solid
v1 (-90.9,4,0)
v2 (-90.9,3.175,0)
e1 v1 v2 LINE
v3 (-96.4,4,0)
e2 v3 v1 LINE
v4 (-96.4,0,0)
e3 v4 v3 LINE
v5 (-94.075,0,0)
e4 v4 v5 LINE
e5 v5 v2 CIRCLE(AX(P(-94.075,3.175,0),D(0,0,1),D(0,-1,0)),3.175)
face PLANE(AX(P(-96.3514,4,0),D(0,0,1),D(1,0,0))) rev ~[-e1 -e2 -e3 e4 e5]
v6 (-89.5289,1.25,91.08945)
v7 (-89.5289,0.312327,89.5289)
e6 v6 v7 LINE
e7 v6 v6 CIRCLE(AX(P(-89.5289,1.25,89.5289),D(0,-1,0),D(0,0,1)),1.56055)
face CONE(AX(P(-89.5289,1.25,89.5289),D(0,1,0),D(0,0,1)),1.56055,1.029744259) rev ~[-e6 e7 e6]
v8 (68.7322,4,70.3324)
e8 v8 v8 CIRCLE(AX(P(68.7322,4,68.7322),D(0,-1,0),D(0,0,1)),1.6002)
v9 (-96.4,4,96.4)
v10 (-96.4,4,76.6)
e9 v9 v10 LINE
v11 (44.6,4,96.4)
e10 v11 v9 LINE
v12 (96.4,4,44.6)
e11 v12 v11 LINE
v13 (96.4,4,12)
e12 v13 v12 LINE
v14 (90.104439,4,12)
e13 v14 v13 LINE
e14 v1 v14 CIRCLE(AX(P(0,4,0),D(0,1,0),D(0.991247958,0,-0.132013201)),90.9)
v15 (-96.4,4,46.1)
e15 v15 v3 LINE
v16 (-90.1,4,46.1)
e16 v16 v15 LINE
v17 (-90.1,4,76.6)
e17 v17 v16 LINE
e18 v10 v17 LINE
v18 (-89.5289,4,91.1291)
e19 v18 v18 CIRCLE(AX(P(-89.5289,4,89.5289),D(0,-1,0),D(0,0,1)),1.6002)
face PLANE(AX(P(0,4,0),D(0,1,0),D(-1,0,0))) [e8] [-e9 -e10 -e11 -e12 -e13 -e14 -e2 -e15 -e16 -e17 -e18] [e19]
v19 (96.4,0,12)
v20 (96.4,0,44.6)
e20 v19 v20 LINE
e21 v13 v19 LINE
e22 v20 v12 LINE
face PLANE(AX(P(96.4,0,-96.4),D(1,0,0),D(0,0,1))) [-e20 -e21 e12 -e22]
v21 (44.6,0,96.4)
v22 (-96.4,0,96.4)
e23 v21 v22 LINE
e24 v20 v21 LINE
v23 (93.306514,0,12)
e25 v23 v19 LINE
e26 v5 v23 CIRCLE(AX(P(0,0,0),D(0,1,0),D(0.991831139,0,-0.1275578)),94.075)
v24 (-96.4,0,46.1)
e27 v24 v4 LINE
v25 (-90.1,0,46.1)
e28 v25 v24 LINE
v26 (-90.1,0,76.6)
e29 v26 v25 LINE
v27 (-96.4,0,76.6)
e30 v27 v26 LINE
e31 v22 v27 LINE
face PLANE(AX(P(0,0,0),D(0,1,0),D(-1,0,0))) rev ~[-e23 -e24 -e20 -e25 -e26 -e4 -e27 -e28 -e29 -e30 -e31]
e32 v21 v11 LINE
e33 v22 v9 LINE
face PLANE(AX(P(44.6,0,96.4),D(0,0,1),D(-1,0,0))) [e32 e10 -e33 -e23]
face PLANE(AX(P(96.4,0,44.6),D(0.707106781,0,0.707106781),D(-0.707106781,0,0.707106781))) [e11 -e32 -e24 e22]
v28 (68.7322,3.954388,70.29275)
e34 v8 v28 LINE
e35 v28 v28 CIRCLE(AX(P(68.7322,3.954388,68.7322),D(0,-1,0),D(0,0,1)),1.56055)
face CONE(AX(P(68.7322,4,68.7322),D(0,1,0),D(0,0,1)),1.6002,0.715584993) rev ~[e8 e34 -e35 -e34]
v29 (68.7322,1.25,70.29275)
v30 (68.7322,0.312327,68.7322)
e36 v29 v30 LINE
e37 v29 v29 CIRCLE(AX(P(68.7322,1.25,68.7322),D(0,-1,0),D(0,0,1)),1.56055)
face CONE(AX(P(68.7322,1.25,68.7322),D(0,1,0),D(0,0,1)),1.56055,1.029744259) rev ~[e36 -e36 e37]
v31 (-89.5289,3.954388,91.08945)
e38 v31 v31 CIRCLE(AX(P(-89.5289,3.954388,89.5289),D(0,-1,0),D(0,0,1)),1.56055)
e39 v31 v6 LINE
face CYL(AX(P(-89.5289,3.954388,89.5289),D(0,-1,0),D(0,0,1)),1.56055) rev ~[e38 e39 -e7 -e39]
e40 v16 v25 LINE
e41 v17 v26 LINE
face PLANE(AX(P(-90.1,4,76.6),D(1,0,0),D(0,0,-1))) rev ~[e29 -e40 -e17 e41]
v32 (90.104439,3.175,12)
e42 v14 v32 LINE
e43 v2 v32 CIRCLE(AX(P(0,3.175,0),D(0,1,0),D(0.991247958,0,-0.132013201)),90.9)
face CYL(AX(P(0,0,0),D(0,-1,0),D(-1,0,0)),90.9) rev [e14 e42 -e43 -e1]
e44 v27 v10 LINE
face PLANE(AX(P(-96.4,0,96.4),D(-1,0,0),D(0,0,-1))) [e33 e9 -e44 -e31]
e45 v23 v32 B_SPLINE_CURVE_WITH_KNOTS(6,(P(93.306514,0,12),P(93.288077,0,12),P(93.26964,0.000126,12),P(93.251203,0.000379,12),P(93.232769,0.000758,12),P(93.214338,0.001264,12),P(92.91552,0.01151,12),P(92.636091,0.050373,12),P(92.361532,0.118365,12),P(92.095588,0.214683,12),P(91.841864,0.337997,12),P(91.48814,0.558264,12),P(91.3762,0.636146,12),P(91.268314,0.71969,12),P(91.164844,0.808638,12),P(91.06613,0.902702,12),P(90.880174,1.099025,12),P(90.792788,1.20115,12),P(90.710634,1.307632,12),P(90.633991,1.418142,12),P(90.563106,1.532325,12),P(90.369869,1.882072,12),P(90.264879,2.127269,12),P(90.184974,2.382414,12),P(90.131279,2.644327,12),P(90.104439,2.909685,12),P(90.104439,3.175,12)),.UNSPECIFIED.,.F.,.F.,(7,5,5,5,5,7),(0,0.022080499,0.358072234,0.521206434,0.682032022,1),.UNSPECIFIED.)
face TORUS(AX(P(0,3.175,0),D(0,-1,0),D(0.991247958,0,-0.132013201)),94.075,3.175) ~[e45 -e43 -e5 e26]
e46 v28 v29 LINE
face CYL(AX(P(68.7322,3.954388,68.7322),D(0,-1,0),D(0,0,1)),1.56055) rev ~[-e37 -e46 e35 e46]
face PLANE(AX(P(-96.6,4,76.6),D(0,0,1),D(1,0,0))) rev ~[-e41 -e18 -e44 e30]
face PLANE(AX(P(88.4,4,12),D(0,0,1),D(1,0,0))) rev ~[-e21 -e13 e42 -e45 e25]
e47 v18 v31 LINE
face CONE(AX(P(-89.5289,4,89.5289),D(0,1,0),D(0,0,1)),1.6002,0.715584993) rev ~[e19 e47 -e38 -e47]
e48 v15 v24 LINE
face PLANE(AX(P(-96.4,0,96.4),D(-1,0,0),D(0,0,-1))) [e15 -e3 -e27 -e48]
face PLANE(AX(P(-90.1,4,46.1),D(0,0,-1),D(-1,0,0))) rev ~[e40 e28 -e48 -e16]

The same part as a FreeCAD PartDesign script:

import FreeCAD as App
import Part
import Sketcher
from FreeCAD import Vector


def edges_at(feature, points):
    """Names of the edges that pass closest to the given points."""
    edges = feature.Shape.Edges
    near = lambda p: min(range(len(edges)), key=lambda i: edges[i].distToShape(Part.Vertex(*p))[0])
    return sorted({f"Edge{near(p) + 1}" for p in points})

doc = App.newDocument("Part")
body = doc.addObject("PartDesign::Body", "Body")

# Sketch on XZ plane
sketch1 = body.newObject("Sketcher::SketchObject", "Sketch")
sketch1.AttachmentSupport = (doc.getObject("XZ_Plane"), [""])
sketch1.MapMode = "FlatFace"
sketch1.addGeometry([
    Part.LineSegment(Vector(45, 96, 0), Vector(96, 45, 0)),  # 0
    Part.LineSegment(Vector(96, 45, 0), Vector(96, -96, 0)),  # 1
    Part.LineSegment(Vector(96, -96, 0), Vector(-96, -96, 0)),  # 2
    Part.LineSegment(Vector(-96, -96, 0), Vector(-96, 96, 0)),  # 3
    Part.LineSegment(Vector(-96, 96, 0), Vector(45, 96, 0)),  # 4
    Part.Circle(Vector(0, 0, 0), Vector(0, 0, 1), 91),  # 5
], False)
sketch1.addConstraint([
    Sketcher.Constraint("Coincident", 0, 2, 1, 1),
    Sketcher.Constraint("Coincident", 1, 2, 2, 1),
    Sketcher.Constraint("Coincident", 2, 2, 3, 1),
    Sketcher.Constraint("Coincident", 3, 2, 4, 1),
    Sketcher.Constraint("Coincident", 4, 2, 0, 1),
    Sketcher.Constraint("Vertical", 1),
    Sketcher.Constraint("Horizontal", 2),
    Sketcher.Constraint("Vertical", 3),
    Sketcher.Constraint("Horizontal", 4),
    Sketcher.Constraint("Coincident", 5, 3, -1, 1),
    Sketcher.Constraint("Symmetric", 1, 2, 3, 2, -1, 1),
    Sketcher.Constraint("Equal", 4, 1),
    Sketcher.Constraint("Equal", 2, 3),
    Sketcher.Constraint("Diameter", 5, 181.8),
    Sketcher.Constraint("DistanceX", 4, 1, 4, 2, 141.0),
    Sketcher.Constraint("DistanceX", 2, 2, 2, 1, 192.8),
])
pad1 = body.newObject("PartDesign::Pad", "Pad")
pad1.Profile = sketch1
pad1.Length = 4
pad1.Reversed = True

# Sketch on XZ plane
sketch2 = body.newObject("Sketcher::SketchObject", "Sketch001")
sketch2.AttachmentSupport = (doc.getObject("XZ_Plane"), [""])
sketch2.MapMode = "FlatFace"
sketch2.AttachmentOffset = App.Placement(Vector(0, 0, -4), App.Rotation())
sketch2.addGeometry([
    Part.LineSegment(Vector(96, -12, 0), Vector(88, -12, 0)),
    Part.LineSegment(Vector(88, -12, 0), Vector(88, 12, 0)),
    Part.LineSegment(Vector(88, 12, 0), Vector(96, 12, 0)),
    Part.LineSegment(Vector(96, 12, 0), Vector(96, -12, 0)),
], False)
sketch2.addConstraint([
    Sketcher.Constraint("Coincident", 0, 2, 1, 1),
    Sketcher.Constraint("Coincident", 1, 2, 2, 1),
    Sketcher.Constraint("Coincident", 2, 2, 3, 1),
    Sketcher.Constraint("Coincident", 3, 2, 0, 1),
    Sketcher.Constraint("Horizontal", 0),
    Sketcher.Constraint("Vertical", 1),
    Sketcher.Constraint("Horizontal", 2),
    Sketcher.Constraint("Vertical", 3),
    Sketcher.Constraint("DistanceX", 0, 2, 0, 1, 8.0),
    Sketcher.Constraint("DistanceY", 0, 2, -1, 1, 12.0),
    Sketcher.Constraint("DistanceY", -1, 1, 1, 2, 12.0),
    Sketcher.Constraint("DistanceX", -1, 1, 0, 2, 88.4),
])
pocket1 = body.newObject("PartDesign::Pocket", "Pocket")
pocket1.Profile = sketch2
pocket1.Length = 25.4
pocket1.Reversed = True

# Sketch on XZ plane
sketch3 = body.newObject("Sketcher::SketchObject", "Sketch002")
sketch3.AttachmentSupport = (doc.getObject("XZ_Plane"), [""])
sketch3.MapMode = "FlatFace"
sketch3.AttachmentOffset = App.Placement(Vector(0, 0, -4), App.Rotation())
sketch3.addGeometry([
    Part.Circle(Vector(-89.5, -89.5, 0), Vector(0, 0, 1), 1.6),
    Part.Circle(Vector(89.5, -89.5, 0), Vector(0, 0, 1), 1.6),
    Part.Circle(Vector(-89.5, 89.5, 0), Vector(0, 0, 1), 1.6),
    Part.Circle(Vector(68.7, 68.7, 0), Vector(0, 0, 1), 1.6),
], False)
sketch3.addConstraint([
    Sketcher.Constraint("Equal", 0, 1),
    Sketcher.Constraint("Equal", 1, 2),
    Sketcher.Constraint("Equal", 2, 3),
    Sketcher.Constraint("Symmetric", 1, 3, 2, 3, -1, 1),
    Sketcher.Constraint("Symmetric", 0, 3, 1, 3, -2),
    Sketcher.Constraint("Diameter", 0, 3.121),
    Sketcher.Constraint("DistanceX", 0, 3, -1, 1, 89.529),
    Sketcher.Constraint("DistanceY", 0, 3, -1, 1, 89.529),
    Sketcher.Constraint("DistanceY", 1, 3, 3, 3, 158.261),
    Sketcher.Constraint("DistanceX", 2, 3, 3, 3, 158.261),
])
doc.recompute()
hole = body.newObject("PartDesign::Hole", "Hole")
hole.Profile = sketch3
hole.ThreadType = "None"
hole.Diameter = 3.1211
hole.DepthType = "Dimension"
hole.Depth = 2.75
hole.DrillPoint = "Angled"
hole.DrillPointAngle = 118
hole.HoleCutType = "Countersink"
hole.HoleCutDiameter = 3.2004
hole.HoleCutCountersinkAngle = 82
hole.Reversed = True
doc.recompute()

fillet = body.newObject("PartDesign::Fillet", "Fillet")
fillet.Base = (hole, edges_at(hole, [(-6.013, 0, -90.701), (-6.013, 0, 90.701)]))
fillet.Radius = 3.175

# Sketch on XZ plane
sketch4 = body.newObject("Sketcher::SketchObject", "Sketch003")
sketch4.AttachmentSupport = (doc.getObject("XZ_Plane"), [""])
sketch4.MapMode = "FlatFace"
sketch4.AttachmentOffset = App.Placement(Vector(0, 0, -4), App.Rotation())
sketch4.addGeometry([
    Part.LineSegment(Vector(-90, -77, 0), Vector(-97, -77, 0)),  # 0
    Part.LineSegment(Vector(-97, -77, 0), Vector(-97, -46, 0)),  # 1
    Part.LineSegment(Vector(-97, -46, 0), Vector(-90, -46, 0)),  # 2
    Part.LineSegment(Vector(-90, -46, 0), Vector(-90, -77, 0)),  # 3
    Part.LineSegment(Vector(-90, 46, 0), Vector(-97, 46, 0)),  # 4
    Part.LineSegment(Vector(-97, 46, 0), Vector(-97, 77, 0)),  # 5
    Part.LineSegment(Vector(-97, 77, 0), Vector(-90, 77, 0)),  # 6
    Part.LineSegment(Vector(-90, 77, 0), Vector(-90, 46, 0)),  # 7
], False)
sketch4.addConstraint([
    Sketcher.Constraint("Coincident", 0, 2, 1, 1),
    Sketcher.Constraint("Coincident", 1, 2, 2, 1),
    Sketcher.Constraint("Coincident", 2, 2, 3, 1),
    Sketcher.Constraint("Coincident", 3, 2, 0, 1),
    Sketcher.Constraint("Coincident", 4, 2, 5, 1),
    Sketcher.Constraint("Coincident", 5, 2, 6, 1),
    Sketcher.Constraint("Coincident", 6, 2, 7, 1),
    Sketcher.Constraint("Coincident", 7, 2, 4, 1),
    Sketcher.Constraint("Horizontal", 0),
    Sketcher.Constraint("Vertical", 1),
    Sketcher.Constraint("Horizontal", 2),
    Sketcher.Constraint("Vertical", 3),
    Sketcher.Constraint("Horizontal", 4),
    Sketcher.Constraint("Vertical", 5),
    Sketcher.Constraint("Horizontal", 6),
    Sketcher.Constraint("Vertical", 7),
    Sketcher.Constraint("Symmetric", 1, 2, 4, 2, -1),
    Sketcher.Constraint("Symmetric", 3, 2, 6, 2, -1),
    Sketcher.Constraint("DistanceX", 0, 2, 0, 1, 6.5),
    Sketcher.Constraint("DistanceY", 1, 1, 1, 2, 30.5),
    Sketcher.Constraint("DistanceX", 0, 2, -1, 1, 96.6),
    Sketcher.Constraint("DistanceY", 0, 2, -1, 1, 76.6),
])
pocket2 = body.newObject("PartDesign::Pocket", "Pocket001")
pocket2.Profile = sketch4
pocket2.Length = 25.4
pocket2.Reversed = True

# Sketch on XY plane
sketch5 = body.newObject("Sketcher::SketchObject", "Sketch004")
sketch5.AttachmentSupport = (doc.getObject("XY_Plane"), [""])
sketch5.MapMode = "FlatFace"
sketch5.addGeometry([
    Part.LineSegment(Vector(141, 41, 0), Vector(-147, 41, 0)),
    Part.LineSegment(Vector(-147, 41, 0), Vector(-147, -56, 0)),
    Part.LineSegment(Vector(-147, -56, 0), Vector(141, -56, 0)),
    Part.LineSegment(Vector(141, -56, 0), Vector(141, 41, 0)),
], False)
sketch5.addConstraint([
    Sketcher.Constraint("Coincident", 0, 2, 1, 1),
    Sketcher.Constraint("Coincident", 1, 2, 2, 1),
    Sketcher.Constraint("Coincident", 2, 2, 3, 1),
    Sketcher.Constraint("Coincident", 3, 2, 0, 1),
    Sketcher.Constraint("Horizontal", 0),
    Sketcher.Constraint("Vertical", 1),
    Sketcher.Constraint("Horizontal", 2),
    Sketcher.Constraint("Vertical", 3),
    Sketcher.Constraint("DistanceY", 1, 2, 1, 1, 96.84),
    Sketcher.Constraint("DistanceX", -1, 1, 2, 2, 141.28),
    Sketcher.Constraint("DistanceX", 0, 2, 0, 1, 288.7753),
    Sketcher.Constraint("DistanceY", -1, 1, 0, 2, 41.1405),
])
pocket3 = body.newObject("PartDesign::Pocket", "Pocket002")
pocket3.Profile = sketch5
pocket3.Type = "ThroughAll"

doc.recompute()
